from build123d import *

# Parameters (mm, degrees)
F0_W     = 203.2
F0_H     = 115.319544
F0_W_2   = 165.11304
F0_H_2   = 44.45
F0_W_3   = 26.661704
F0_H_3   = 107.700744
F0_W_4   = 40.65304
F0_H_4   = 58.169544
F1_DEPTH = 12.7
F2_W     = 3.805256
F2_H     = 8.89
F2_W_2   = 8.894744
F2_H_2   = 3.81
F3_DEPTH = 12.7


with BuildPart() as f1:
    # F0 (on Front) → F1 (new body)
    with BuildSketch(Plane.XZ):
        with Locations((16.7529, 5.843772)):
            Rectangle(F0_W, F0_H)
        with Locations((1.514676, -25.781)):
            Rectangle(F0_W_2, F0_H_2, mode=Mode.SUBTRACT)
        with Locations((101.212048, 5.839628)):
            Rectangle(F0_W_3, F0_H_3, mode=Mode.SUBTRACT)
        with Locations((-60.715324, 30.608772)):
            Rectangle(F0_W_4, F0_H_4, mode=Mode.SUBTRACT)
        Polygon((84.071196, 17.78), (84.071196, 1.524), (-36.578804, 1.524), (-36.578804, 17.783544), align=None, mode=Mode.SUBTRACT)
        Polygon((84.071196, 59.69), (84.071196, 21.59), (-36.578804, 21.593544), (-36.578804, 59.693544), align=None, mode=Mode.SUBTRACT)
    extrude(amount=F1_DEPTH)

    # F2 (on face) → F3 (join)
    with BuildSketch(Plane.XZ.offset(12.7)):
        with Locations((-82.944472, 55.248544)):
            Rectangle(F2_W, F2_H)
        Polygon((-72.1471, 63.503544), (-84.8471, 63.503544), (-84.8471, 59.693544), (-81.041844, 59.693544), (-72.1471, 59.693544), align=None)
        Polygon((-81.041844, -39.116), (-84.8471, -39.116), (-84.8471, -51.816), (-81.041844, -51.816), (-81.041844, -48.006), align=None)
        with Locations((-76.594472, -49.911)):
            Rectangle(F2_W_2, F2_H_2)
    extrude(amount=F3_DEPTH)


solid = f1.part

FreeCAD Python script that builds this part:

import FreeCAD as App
import Part
import Sketcher
Q = App.Units.Quantity

doc = App.newDocument("Part")
body = doc.addObject("PartDesign::Body", "Body")

# Sketch on XZ plane
sketch1 = body.newObject("Sketcher::SketchObject", "Sketch")
sketch1.AttachmentSupport = (doc.getObject("XZ_Plane"), [""])
sketch1.MapMode = "FlatFace"
sketch1.addGeometry([
    Part.LineSegment(App.Vector(-84.8471, 63.503544, 0), App.Vector(-84.8471, -51.816, 0)),  # 0
    Part.LineSegment(App.Vector(-84.8471, -51.816, 0), App.Vector(118.3529, -51.816, 0)),  # 1
    Part.LineSegment(App.Vector(118.3529, -51.816, 0), App.Vector(118.3529, 63.503544, 0)),  # 2
    Part.LineSegment(App.Vector(118.3529, 63.503544, 0), App.Vector(-84.8471, 63.503544, 0)),  # 3
    Part.LineSegment(App.Vector(84.071196, -48.006, 0), App.Vector(-81.041844, -48.006, 0)),  # 4
    Part.LineSegment(App.Vector(-81.041844, -48.006, 0), App.Vector(-81.041844, -3.556, 0)),  # 5
    Part.LineSegment(App.Vector(-81.041844, -3.556, 0), App.Vector(84.071196, -3.556, 0)),  # 6
    Part.LineSegment(App.Vector(84.071196, -3.556, 0), App.Vector(84.071196, -48.006, 0)),  # 7
    Part.LineSegment(App.Vector(114.5429, -48.010744, 0), App.Vector(87.881196, -48.010744, 0)),  # 8
    Part.LineSegment(App.Vector(87.881196, -48.010744, 0), App.Vector(87.881196, 59.69, 0)),  # 9
    Part.LineSegment(App.Vector(87.881196, 59.69, 0), App.Vector(114.5429, 59.69, 0)),  # 10
    Part.LineSegment(App.Vector(114.5429, 59.69, 0), App.Vector(114.5429, -48.010744, 0)),  # 11
    Part.LineSegment(App.Vector(-40.388804, 1.524, 0), App.Vector(-81.041844, 1.524, 0)),  # 12
    Part.LineSegment(App.Vector(-81.041844, 1.524, 0), App.Vector(-81.041844, 59.693544, 0)),  # 13
    Part.LineSegment(App.Vector(-81.041844, 59.693544, 0), App.Vector(-40.388804, 59.693544, 0)),  # 14
    Part.LineSegment(App.Vector(-40.388804, 59.693544, 0), App.Vector(-40.388804, 1.524, 0)),  # 15
    Part.LineSegment(App.Vector(-36.578804, 17.783544, 0), App.Vector(84.071196, 17.78, 0)),  # 16
    Part.LineSegment(App.Vector(84.071196, 17.78, 0), App.Vector(84.071196, 1.524, 0)),  # 17
    Part.LineSegment(App.Vector(84.071196, 1.524, 0), App.Vector(-36.578804, 1.524, 0)),  # 18
    Part.LineSegment(App.Vector(-36.578804, 1.524, 0), App.Vector(-36.578804, 17.783544, 0)),  # 19
    Part.LineSegment(App.Vector(-36.578804, 59.693544, 0), App.Vector(84.071196, 59.69, 0)),  # 20
    Part.LineSegment(App.Vector(84.071196, 59.69, 0), App.Vector(84.071196, 21.59, 0)),  # 21
    Part.LineSegment(App.Vector(84.071196, 21.59, 0), App.Vector(-36.578804, 21.593544, 0)),  # 22
    Part.LineSegment(App.Vector(-36.578804, 21.593544, 0), App.Vector(-36.578804, 59.693544, 0)),  # 23
], False)
sketch1.addConstraint([
    Sketcher.Constraint("Coincident", 0, 2, 1, 1),
    Sketcher.Constraint("Coincident", 1, 2, 2, 1),
    Sketcher.Constraint("Coincident", 2, 2, 3, 1),
    Sketcher.Constraint("Coincident", 3, 2, 0, 1),
    Sketcher.Constraint("Coincident", 4, 2, 5, 1),
    Sketcher.Constraint("Coincident", 5, 2, 6, 1),
    Sketcher.Constraint("Coincident", 6, 2, 7, 1),
    Sketcher.Constraint("Coincident", 7, 2, 4, 1),
    Sketcher.Constraint("Coincident", 8, 2, 9, 1),
    Sketcher.Constraint("Coincident", 9, 2, 10, 1),
    Sketcher.Constraint("Coincident", 10, 2, 11, 1),
    Sketcher.Constraint("Coincident", 11, 2, 8, 1),
    Sketcher.Constraint("Coincident", 12, 2, 13, 1),
    Sketcher.Constraint("Coincident", 13, 2, 14, 1),
    Sketcher.Constraint("Coincident", 14, 2, 15, 1),
    Sketcher.Constraint("Coincident", 15, 2, 12, 1),
    Sketcher.Constraint("Coincident", 16, 2, 17, 1),
    Sketcher.Constraint("Coincident", 17, 2, 18, 1),
    Sketcher.Constraint("Coincident", 18, 2, 19, 1),
    Sketcher.Constraint("Coincident", 19, 2, 16, 1),
    Sketcher.Constraint("Coincident", 20, 2, 21, 1),
    Sketcher.Constraint("Coincident", 21, 2, 22, 1),
    Sketcher.Constraint("Coincident", 22, 2, 23, 1),
    Sketcher.Constraint("Coincident", 23, 2, 20, 1),
    Sketcher.Constraint("Vertical", 0),
    Sketcher.Constraint("Horizontal", 1),
    Sketcher.Constraint("Vertical", 2),
    Sketcher.Constraint("Horizontal", 3),
    Sketcher.Constraint("Horizontal", 4),
    Sketcher.Constraint("Vertical", 5),
    Sketcher.Constraint("Horizontal", 6),
    Sketcher.Constraint("Vertical", 7),
    Sketcher.Constraint("Horizontal", 8),
    Sketcher.Constraint("Vertical", 9),
    Sketcher.Constraint("Horizontal", 10),
    Sketcher.Constraint("Vertical", 11),
    Sketcher.Constraint("Horizontal", 12),
    Sketcher.Constraint("Vertical", 13),
    Sketcher.Constraint("Horizontal", 14),
    Sketcher.Constraint("Vertical", 15),
    Sketcher.Constraint("Vertical", 17),
    Sketcher.Constraint("Horizontal", 18),
    Sketcher.Constraint("Vertical", 19),
    Sketcher.Constraint("Vertical", 21),
    Sketcher.Constraint("Vertical", 23),
    Sketcher.Constraint("Parallel", 16, 20),
    Sketcher.Constraint("Parallel", 20, 22),
    Sketcher.Constraint("Horizontal", 15, 2, 17, 2),
    Sketcher.Constraint("Horizontal", 10, 2, 20, 2),
    Sketcher.Constraint("Horizontal", 14, 2, 23, 2),
    Sketcher.Constraint("Vertical", 5, 2, 12, 2),
    Sketcher.Constraint("Vertical", 7, 2, 16, 2),
    Sketcher.Constraint("Vertical", 17, 2, 20, 2),
    Sketcher.Constraint("Vertical", 19, 2, 22, 2),
    Sketcher.Constraint("DistanceX", 1, 1, 1, 2, Q("8 in")),
    Sketcher.Constraint("DistanceY", 21, 2, 21, 1, Q("1.5 in")),
    Sketcher.Constraint("DistanceX", 18, 2, 18, 1, Q("4.75 in")),
    Sketcher.Constraint("DistanceY", 5, 1, 5, 2, Q("1.75 in")),
    Sketcher.Constraint("DistanceY", 17, 2, 17, 1, Q("0.64 in")),
    Sketcher.Constraint("DistanceY", -1, 1, 16, 2, Q("0.7 in")),
    Sketcher.Constraint("DistanceY", 0, 2, 5, 2, Q("1.9 in")),
    Sketcher.Constraint("DistanceY", 5, 2, 12, 2, Q("0.2 in")),
    Sketcher.Constraint("DistanceY", -1, 1, 9, 2, Q("2.35 in")),
    Sketcher.Constraint("DistanceX", 7, 2, 8, 2, Q("0.15 in")),
    Sketcher.Constraint("DistanceX", 10, 2, 2, 2, Q("0.15 in")),
    Sketcher.Constraint("DistanceY", 13, 2, 3, 2, Q("0.15 in")),
    Sketcher.Constraint("DistanceX", 15, 2, 18, 2, Q("0.15 in")),
    Sketcher.Constraint("DistanceX", 4, 2, 4, 1, 165.11304),
    Sketcher.Constraint("DistanceX", 0, 2, -1, 1, 84.8471),
    Sketcher.Constraint("DistanceX", 8, 2, 8, 1, 26.661704),
    Sketcher.Constraint("DistanceY", 0, 2, 0, 1, 115.319544),
    Sketcher.Constraint("DistanceY", 9, 1, 9, 2, 107.700744),
])
pad1 = body.newObject("PartDesign::Pad", "Pad")
pad1.Profile = sketch1
pad1.Length = Q("0.5 in")

# Sketch on XZ plane
sketch2 = body.newObject("Sketcher::SketchObject", "Sketch001")
sketch2.AttachmentSupport = (doc.getObject("XZ_Plane"), [""])
sketch2.MapMode = "FlatFace"
sketch2.AttachmentOffset = App.Placement(App.Vector(0, 0, 0.5 * 25.4), App.Rotation())
sketch2.addGeometry([
    Part.LineSegment(App.Vector(-84.8471, 50.803544, 0), App.Vector(-81.041844, 50.803544, 0)),  # 0
    Part.LineSegment(App.Vector(-81.041844, 50.803544, 0), App.Vector(-81.041844, 59.693544, 0)),  # 1
    Part.LineSegment(App.Vector(-81.041844, 59.693544, 0), App.Vector(-72.1471, 59.693544, 0)),  # 2
    Part.LineSegment(App.Vector(-72.1471, 59.693544, 0), App.Vector(-72.1471, 63.503544, 0)),  # 3
    Part.LineSegment(App.Vector(-72.1471, 63.503544, 0), App.Vector(-84.8471, 63.503544, 0)),  # 4
    Part.LineSegment(App.Vector(-84.8471, 63.503544, 0), App.Vector(-84.8471, 50.803544, 0)),  # 5
    Part.LineSegment(App.Vector(-81.041844, -39.116, 0), App.Vector(-84.8471, -39.116, 0)),  # 6
    Part.LineSegment(App.Vector(-84.8471, -39.116, 0), App.Vector(-84.8471, -51.816, 0)),  # 7
    Part.LineSegment(App.Vector(-84.8471, -51.816, 0), App.Vector(-72.1471, -51.816, 0)),  # 8
    Part.LineSegment(App.Vector(-72.1471, -51.816, 0), App.Vector(-72.1471, -48.006, 0)),  # 9
    Part.LineSegment(App.Vector(-72.1471, -48.006, 0), App.Vector(-81.041844, -48.006, 0)),  # 10
    Part.LineSegment(App.Vector(-81.041844, -48.006, 0), App.Vector(-81.041844, -39.116, 0)),  # 11
], False)
sketch2.addConstraint([
    Sketcher.Constraint("Coincident", 0, 2, 1, 1),
    Sketcher.Constraint("Coincident", 1, 2, 2, 1),
    Sketcher.Constraint("Coincident", 2, 2, 3, 1),
    Sketcher.Constraint("Coincident", 3, 2, 4, 1),
    Sketcher.Constraint("Coincident", 4, 2, 5, 1),
    Sketcher.Constraint("Coincident", 5, 2, 0, 1),
    Sketcher.Constraint("Coincident", 6, 2, 7, 1),
    Sketcher.Constraint("Coincident", 7, 2, 8, 1),
    Sketcher.Constraint("Coincident", 8, 2, 9, 1),
    Sketcher.Constraint("Coincident", 9, 2, 10, 1),
    Sketcher.Constraint("Coincident", 10, 2, 11, 1),
    Sketcher.Constraint("Coincident", 11, 2, 6, 1),
    Sketcher.Constraint("Horizontal", 0),
    Sketcher.Constraint("Vertical", 1),
    Sketcher.Constraint("Horizontal", 2),
    Sketcher.Constraint("Vertical", 3),
    Sketcher.Constraint("Horizontal", 4),
    Sketcher.Constraint("Vertical", 5),
    Sketcher.Constraint("Horizontal", 6),
    Sketcher.Constraint("Vertical", 7),
    Sketcher.Constraint("Horizontal", 8),
    Sketcher.Constraint("Vertical", 9),
    Sketcher.Constraint("Horizontal", 10),
    Sketcher.Constraint("Vertical", 11),
    Sketcher.Constraint("Vertical", 5, 2, 6, 2),
    Sketcher.Constraint("Vertical", 3, 2, 8, 2),
    Sketcher.Constraint("Vertical", 1, 2, 10, 2),
    Sketcher.Constraint("Equal", 8, 5),
    Sketcher.Constraint("Equal", 5, 7),
    Sketcher.Constraint("Equal", 3, 9),
    Sketcher.Constraint("DistanceX", 4, 2, 4, 1, Q("0.5 in")),
    Sketcher.Constraint("DistanceY", 1, 1, 1, 2, Q("0.35 in")),
    Sketcher.Constraint("DistanceY", 6, 2, -1, 1, Q("1.54 in")),
    Sketcher.Constraint("DistanceX", 2, 2, -1, 1, 72.1471),
    Sketcher.Constraint("DistanceX", 0, 1, 0, 2, 3.805256),
    Sketcher.Constraint("DistanceY", -1, 1, 0, 2, 50.803544),
])
pad2 = body.newObject("PartDesign::Pad", "Pad001")
pad2.Profile = sketch2
pad2.Length = Q("0.5 in")

doc.recompute()
